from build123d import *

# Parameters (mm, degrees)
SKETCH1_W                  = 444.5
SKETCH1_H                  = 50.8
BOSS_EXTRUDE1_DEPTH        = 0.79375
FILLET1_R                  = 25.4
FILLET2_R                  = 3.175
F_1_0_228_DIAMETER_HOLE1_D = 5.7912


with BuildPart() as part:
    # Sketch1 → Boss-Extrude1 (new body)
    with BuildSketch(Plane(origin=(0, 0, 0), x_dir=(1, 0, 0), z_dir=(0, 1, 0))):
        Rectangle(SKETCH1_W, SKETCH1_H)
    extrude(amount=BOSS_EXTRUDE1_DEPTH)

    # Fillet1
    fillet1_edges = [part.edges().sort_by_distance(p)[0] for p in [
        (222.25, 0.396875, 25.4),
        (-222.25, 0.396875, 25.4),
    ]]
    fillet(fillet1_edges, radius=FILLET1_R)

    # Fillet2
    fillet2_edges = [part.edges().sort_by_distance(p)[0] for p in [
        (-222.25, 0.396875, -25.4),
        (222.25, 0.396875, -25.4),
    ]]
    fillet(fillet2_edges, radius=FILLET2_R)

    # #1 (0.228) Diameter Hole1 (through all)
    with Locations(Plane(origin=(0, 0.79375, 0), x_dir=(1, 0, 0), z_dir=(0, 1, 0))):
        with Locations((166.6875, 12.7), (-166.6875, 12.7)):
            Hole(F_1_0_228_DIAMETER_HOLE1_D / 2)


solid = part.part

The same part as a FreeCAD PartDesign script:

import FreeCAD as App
import Part
import Sketcher

V = App.Vector
Q = App.Units.Quantity


def edges_at(feature, points):
    """Names of the edges that pass closest to the given points."""
    edges = feature.Shape.Edges
    near = lambda p: min(range(len(edges)), key=lambda i: edges[i].distToShape(Part.Vertex(*p))[0])
    return sorted({f"Edge{near(p) + 1}" for p in points})


def add_polygon(sketch, points):
    """Adds a closed chain of lines whose ends are joined by coincident constraints."""
    first, n = sketch.GeometryCount, len(points)
    for a, b in zip(points, points[1:] + points[:1]):
        sketch.addGeometry(Part.LineSegment(App.Vector(*a, 0), App.Vector(*b, 0)), False)
    for i in range(n):
        sketch.addConstraint(Sketcher.Constraint("Coincident", first + i, 2, first + (i + 1) % n, 1))

doc = App.newDocument("Part")
body = doc.addObject("PartDesign::Body", "Body")

# Sketch on XZ plane
sketch1 = doc.addObject("Sketcher::SketchObject", "Sketch")
body.addObject(sketch1)
sketch1.AttachmentSupport = (doc.XZ_Plane, [""])
sketch1.MapMode = "FlatFace"
add_polygon(sketch1, [(-222, -25), (-222, 25), (222, 25), (222, -25)])  # lines 0-3
sketch1.addConstraint(Sketcher.Constraint("Vertical", 0))
sketch1.addConstraint(Sketcher.Constraint("Horizontal", 1))
sketch1.addConstraint(Sketcher.Constraint("Vertical", 2))
sketch1.addConstraint(Sketcher.Constraint("Horizontal", 3))
sketch1.addConstraint(Sketcher.Constraint("Symmetric", 0, 2, 2, 2, -1, 1))
sketch1.addConstraint(Sketcher.Constraint("DistanceY", 0, 1, 0, 2, Q("2 in")))
sketch1.addConstraint(Sketcher.Constraint("DistanceX", 1, 1, 1, 2, Q("17.5 in")))
pad1 = doc.addObject("PartDesign::Pad", "Pad")
body.addObject(pad1)
pad1.Profile = sketch1
pad1.Length = Q("0.03125 in")
pad1.Reversed = True
doc.recompute()

fillet = doc.addObject("PartDesign::Fillet", "Fillet")
body.addObject(fillet)
fillet.Base = (pad1, edges_at(pad1, [(222.25, 0.397, 25.4), (-222.25, 0.397, 25.4)]))
fillet.Radius = Q("1 in")
doc.recompute()

fillet2 = doc.addObject("PartDesign::Fillet", "Fillet001")
body.addObject(fillet2)
fillet2.Base = (fillet, edges_at(fillet, [(-222.25, 0.397, -25.4), (222.25, 0.397, -25.4)]))
fillet2.Radius = Q("0.125 in")

# Sketch on XZ plane
sketch2 = doc.addObject("Sketcher::SketchObject", "Sketch001")
body.addObject(sketch2)
sketch2.AttachmentSupport = (doc.XZ_Plane, [""])
sketch2.MapMode = "FlatFace"
sketch2.AttachmentOffset = App.Placement(V(0, 0, -0.03125 * 25.4), App.Rotation())
sketch2.addGeometry(Part.Circle(V(166.7, -12.7, 0), V(0, 0, 1), 2.9), False)
sketch2.addGeometry(Part.Circle(V(-166.7, -12.7, 0), V(0, 0, 1), 2.9), False)
sketch2.addConstraint(Sketcher.Constraint("Equal", 0, 1))
sketch2.addConstraint(Sketcher.Constraint("Symmetric", 0, 3, 1, 3, -2))
sketch2.addConstraint(Sketcher.Constraint("Diameter", 0, Q("0.228 in")))
sketch2.addConstraint(Sketcher.Constraint("DistanceY", 0, 3, -1, 1, Q("0.5 in")))
sketch2.addConstraint(Sketcher.Constraint("DistanceX", -1, 1, 0, 3, Q("6.5625 in")))
doc.recompute()
hole = doc.addObject("PartDesign::Hole", "Hole")
body.addObject(hole)
hole.Profile = sketch2
hole.ThreadType = "None"
hole.Diameter = Q("0.228 in")
hole.DepthType = "ThroughAll"
hole.Reversed = True

doc.recompute()
